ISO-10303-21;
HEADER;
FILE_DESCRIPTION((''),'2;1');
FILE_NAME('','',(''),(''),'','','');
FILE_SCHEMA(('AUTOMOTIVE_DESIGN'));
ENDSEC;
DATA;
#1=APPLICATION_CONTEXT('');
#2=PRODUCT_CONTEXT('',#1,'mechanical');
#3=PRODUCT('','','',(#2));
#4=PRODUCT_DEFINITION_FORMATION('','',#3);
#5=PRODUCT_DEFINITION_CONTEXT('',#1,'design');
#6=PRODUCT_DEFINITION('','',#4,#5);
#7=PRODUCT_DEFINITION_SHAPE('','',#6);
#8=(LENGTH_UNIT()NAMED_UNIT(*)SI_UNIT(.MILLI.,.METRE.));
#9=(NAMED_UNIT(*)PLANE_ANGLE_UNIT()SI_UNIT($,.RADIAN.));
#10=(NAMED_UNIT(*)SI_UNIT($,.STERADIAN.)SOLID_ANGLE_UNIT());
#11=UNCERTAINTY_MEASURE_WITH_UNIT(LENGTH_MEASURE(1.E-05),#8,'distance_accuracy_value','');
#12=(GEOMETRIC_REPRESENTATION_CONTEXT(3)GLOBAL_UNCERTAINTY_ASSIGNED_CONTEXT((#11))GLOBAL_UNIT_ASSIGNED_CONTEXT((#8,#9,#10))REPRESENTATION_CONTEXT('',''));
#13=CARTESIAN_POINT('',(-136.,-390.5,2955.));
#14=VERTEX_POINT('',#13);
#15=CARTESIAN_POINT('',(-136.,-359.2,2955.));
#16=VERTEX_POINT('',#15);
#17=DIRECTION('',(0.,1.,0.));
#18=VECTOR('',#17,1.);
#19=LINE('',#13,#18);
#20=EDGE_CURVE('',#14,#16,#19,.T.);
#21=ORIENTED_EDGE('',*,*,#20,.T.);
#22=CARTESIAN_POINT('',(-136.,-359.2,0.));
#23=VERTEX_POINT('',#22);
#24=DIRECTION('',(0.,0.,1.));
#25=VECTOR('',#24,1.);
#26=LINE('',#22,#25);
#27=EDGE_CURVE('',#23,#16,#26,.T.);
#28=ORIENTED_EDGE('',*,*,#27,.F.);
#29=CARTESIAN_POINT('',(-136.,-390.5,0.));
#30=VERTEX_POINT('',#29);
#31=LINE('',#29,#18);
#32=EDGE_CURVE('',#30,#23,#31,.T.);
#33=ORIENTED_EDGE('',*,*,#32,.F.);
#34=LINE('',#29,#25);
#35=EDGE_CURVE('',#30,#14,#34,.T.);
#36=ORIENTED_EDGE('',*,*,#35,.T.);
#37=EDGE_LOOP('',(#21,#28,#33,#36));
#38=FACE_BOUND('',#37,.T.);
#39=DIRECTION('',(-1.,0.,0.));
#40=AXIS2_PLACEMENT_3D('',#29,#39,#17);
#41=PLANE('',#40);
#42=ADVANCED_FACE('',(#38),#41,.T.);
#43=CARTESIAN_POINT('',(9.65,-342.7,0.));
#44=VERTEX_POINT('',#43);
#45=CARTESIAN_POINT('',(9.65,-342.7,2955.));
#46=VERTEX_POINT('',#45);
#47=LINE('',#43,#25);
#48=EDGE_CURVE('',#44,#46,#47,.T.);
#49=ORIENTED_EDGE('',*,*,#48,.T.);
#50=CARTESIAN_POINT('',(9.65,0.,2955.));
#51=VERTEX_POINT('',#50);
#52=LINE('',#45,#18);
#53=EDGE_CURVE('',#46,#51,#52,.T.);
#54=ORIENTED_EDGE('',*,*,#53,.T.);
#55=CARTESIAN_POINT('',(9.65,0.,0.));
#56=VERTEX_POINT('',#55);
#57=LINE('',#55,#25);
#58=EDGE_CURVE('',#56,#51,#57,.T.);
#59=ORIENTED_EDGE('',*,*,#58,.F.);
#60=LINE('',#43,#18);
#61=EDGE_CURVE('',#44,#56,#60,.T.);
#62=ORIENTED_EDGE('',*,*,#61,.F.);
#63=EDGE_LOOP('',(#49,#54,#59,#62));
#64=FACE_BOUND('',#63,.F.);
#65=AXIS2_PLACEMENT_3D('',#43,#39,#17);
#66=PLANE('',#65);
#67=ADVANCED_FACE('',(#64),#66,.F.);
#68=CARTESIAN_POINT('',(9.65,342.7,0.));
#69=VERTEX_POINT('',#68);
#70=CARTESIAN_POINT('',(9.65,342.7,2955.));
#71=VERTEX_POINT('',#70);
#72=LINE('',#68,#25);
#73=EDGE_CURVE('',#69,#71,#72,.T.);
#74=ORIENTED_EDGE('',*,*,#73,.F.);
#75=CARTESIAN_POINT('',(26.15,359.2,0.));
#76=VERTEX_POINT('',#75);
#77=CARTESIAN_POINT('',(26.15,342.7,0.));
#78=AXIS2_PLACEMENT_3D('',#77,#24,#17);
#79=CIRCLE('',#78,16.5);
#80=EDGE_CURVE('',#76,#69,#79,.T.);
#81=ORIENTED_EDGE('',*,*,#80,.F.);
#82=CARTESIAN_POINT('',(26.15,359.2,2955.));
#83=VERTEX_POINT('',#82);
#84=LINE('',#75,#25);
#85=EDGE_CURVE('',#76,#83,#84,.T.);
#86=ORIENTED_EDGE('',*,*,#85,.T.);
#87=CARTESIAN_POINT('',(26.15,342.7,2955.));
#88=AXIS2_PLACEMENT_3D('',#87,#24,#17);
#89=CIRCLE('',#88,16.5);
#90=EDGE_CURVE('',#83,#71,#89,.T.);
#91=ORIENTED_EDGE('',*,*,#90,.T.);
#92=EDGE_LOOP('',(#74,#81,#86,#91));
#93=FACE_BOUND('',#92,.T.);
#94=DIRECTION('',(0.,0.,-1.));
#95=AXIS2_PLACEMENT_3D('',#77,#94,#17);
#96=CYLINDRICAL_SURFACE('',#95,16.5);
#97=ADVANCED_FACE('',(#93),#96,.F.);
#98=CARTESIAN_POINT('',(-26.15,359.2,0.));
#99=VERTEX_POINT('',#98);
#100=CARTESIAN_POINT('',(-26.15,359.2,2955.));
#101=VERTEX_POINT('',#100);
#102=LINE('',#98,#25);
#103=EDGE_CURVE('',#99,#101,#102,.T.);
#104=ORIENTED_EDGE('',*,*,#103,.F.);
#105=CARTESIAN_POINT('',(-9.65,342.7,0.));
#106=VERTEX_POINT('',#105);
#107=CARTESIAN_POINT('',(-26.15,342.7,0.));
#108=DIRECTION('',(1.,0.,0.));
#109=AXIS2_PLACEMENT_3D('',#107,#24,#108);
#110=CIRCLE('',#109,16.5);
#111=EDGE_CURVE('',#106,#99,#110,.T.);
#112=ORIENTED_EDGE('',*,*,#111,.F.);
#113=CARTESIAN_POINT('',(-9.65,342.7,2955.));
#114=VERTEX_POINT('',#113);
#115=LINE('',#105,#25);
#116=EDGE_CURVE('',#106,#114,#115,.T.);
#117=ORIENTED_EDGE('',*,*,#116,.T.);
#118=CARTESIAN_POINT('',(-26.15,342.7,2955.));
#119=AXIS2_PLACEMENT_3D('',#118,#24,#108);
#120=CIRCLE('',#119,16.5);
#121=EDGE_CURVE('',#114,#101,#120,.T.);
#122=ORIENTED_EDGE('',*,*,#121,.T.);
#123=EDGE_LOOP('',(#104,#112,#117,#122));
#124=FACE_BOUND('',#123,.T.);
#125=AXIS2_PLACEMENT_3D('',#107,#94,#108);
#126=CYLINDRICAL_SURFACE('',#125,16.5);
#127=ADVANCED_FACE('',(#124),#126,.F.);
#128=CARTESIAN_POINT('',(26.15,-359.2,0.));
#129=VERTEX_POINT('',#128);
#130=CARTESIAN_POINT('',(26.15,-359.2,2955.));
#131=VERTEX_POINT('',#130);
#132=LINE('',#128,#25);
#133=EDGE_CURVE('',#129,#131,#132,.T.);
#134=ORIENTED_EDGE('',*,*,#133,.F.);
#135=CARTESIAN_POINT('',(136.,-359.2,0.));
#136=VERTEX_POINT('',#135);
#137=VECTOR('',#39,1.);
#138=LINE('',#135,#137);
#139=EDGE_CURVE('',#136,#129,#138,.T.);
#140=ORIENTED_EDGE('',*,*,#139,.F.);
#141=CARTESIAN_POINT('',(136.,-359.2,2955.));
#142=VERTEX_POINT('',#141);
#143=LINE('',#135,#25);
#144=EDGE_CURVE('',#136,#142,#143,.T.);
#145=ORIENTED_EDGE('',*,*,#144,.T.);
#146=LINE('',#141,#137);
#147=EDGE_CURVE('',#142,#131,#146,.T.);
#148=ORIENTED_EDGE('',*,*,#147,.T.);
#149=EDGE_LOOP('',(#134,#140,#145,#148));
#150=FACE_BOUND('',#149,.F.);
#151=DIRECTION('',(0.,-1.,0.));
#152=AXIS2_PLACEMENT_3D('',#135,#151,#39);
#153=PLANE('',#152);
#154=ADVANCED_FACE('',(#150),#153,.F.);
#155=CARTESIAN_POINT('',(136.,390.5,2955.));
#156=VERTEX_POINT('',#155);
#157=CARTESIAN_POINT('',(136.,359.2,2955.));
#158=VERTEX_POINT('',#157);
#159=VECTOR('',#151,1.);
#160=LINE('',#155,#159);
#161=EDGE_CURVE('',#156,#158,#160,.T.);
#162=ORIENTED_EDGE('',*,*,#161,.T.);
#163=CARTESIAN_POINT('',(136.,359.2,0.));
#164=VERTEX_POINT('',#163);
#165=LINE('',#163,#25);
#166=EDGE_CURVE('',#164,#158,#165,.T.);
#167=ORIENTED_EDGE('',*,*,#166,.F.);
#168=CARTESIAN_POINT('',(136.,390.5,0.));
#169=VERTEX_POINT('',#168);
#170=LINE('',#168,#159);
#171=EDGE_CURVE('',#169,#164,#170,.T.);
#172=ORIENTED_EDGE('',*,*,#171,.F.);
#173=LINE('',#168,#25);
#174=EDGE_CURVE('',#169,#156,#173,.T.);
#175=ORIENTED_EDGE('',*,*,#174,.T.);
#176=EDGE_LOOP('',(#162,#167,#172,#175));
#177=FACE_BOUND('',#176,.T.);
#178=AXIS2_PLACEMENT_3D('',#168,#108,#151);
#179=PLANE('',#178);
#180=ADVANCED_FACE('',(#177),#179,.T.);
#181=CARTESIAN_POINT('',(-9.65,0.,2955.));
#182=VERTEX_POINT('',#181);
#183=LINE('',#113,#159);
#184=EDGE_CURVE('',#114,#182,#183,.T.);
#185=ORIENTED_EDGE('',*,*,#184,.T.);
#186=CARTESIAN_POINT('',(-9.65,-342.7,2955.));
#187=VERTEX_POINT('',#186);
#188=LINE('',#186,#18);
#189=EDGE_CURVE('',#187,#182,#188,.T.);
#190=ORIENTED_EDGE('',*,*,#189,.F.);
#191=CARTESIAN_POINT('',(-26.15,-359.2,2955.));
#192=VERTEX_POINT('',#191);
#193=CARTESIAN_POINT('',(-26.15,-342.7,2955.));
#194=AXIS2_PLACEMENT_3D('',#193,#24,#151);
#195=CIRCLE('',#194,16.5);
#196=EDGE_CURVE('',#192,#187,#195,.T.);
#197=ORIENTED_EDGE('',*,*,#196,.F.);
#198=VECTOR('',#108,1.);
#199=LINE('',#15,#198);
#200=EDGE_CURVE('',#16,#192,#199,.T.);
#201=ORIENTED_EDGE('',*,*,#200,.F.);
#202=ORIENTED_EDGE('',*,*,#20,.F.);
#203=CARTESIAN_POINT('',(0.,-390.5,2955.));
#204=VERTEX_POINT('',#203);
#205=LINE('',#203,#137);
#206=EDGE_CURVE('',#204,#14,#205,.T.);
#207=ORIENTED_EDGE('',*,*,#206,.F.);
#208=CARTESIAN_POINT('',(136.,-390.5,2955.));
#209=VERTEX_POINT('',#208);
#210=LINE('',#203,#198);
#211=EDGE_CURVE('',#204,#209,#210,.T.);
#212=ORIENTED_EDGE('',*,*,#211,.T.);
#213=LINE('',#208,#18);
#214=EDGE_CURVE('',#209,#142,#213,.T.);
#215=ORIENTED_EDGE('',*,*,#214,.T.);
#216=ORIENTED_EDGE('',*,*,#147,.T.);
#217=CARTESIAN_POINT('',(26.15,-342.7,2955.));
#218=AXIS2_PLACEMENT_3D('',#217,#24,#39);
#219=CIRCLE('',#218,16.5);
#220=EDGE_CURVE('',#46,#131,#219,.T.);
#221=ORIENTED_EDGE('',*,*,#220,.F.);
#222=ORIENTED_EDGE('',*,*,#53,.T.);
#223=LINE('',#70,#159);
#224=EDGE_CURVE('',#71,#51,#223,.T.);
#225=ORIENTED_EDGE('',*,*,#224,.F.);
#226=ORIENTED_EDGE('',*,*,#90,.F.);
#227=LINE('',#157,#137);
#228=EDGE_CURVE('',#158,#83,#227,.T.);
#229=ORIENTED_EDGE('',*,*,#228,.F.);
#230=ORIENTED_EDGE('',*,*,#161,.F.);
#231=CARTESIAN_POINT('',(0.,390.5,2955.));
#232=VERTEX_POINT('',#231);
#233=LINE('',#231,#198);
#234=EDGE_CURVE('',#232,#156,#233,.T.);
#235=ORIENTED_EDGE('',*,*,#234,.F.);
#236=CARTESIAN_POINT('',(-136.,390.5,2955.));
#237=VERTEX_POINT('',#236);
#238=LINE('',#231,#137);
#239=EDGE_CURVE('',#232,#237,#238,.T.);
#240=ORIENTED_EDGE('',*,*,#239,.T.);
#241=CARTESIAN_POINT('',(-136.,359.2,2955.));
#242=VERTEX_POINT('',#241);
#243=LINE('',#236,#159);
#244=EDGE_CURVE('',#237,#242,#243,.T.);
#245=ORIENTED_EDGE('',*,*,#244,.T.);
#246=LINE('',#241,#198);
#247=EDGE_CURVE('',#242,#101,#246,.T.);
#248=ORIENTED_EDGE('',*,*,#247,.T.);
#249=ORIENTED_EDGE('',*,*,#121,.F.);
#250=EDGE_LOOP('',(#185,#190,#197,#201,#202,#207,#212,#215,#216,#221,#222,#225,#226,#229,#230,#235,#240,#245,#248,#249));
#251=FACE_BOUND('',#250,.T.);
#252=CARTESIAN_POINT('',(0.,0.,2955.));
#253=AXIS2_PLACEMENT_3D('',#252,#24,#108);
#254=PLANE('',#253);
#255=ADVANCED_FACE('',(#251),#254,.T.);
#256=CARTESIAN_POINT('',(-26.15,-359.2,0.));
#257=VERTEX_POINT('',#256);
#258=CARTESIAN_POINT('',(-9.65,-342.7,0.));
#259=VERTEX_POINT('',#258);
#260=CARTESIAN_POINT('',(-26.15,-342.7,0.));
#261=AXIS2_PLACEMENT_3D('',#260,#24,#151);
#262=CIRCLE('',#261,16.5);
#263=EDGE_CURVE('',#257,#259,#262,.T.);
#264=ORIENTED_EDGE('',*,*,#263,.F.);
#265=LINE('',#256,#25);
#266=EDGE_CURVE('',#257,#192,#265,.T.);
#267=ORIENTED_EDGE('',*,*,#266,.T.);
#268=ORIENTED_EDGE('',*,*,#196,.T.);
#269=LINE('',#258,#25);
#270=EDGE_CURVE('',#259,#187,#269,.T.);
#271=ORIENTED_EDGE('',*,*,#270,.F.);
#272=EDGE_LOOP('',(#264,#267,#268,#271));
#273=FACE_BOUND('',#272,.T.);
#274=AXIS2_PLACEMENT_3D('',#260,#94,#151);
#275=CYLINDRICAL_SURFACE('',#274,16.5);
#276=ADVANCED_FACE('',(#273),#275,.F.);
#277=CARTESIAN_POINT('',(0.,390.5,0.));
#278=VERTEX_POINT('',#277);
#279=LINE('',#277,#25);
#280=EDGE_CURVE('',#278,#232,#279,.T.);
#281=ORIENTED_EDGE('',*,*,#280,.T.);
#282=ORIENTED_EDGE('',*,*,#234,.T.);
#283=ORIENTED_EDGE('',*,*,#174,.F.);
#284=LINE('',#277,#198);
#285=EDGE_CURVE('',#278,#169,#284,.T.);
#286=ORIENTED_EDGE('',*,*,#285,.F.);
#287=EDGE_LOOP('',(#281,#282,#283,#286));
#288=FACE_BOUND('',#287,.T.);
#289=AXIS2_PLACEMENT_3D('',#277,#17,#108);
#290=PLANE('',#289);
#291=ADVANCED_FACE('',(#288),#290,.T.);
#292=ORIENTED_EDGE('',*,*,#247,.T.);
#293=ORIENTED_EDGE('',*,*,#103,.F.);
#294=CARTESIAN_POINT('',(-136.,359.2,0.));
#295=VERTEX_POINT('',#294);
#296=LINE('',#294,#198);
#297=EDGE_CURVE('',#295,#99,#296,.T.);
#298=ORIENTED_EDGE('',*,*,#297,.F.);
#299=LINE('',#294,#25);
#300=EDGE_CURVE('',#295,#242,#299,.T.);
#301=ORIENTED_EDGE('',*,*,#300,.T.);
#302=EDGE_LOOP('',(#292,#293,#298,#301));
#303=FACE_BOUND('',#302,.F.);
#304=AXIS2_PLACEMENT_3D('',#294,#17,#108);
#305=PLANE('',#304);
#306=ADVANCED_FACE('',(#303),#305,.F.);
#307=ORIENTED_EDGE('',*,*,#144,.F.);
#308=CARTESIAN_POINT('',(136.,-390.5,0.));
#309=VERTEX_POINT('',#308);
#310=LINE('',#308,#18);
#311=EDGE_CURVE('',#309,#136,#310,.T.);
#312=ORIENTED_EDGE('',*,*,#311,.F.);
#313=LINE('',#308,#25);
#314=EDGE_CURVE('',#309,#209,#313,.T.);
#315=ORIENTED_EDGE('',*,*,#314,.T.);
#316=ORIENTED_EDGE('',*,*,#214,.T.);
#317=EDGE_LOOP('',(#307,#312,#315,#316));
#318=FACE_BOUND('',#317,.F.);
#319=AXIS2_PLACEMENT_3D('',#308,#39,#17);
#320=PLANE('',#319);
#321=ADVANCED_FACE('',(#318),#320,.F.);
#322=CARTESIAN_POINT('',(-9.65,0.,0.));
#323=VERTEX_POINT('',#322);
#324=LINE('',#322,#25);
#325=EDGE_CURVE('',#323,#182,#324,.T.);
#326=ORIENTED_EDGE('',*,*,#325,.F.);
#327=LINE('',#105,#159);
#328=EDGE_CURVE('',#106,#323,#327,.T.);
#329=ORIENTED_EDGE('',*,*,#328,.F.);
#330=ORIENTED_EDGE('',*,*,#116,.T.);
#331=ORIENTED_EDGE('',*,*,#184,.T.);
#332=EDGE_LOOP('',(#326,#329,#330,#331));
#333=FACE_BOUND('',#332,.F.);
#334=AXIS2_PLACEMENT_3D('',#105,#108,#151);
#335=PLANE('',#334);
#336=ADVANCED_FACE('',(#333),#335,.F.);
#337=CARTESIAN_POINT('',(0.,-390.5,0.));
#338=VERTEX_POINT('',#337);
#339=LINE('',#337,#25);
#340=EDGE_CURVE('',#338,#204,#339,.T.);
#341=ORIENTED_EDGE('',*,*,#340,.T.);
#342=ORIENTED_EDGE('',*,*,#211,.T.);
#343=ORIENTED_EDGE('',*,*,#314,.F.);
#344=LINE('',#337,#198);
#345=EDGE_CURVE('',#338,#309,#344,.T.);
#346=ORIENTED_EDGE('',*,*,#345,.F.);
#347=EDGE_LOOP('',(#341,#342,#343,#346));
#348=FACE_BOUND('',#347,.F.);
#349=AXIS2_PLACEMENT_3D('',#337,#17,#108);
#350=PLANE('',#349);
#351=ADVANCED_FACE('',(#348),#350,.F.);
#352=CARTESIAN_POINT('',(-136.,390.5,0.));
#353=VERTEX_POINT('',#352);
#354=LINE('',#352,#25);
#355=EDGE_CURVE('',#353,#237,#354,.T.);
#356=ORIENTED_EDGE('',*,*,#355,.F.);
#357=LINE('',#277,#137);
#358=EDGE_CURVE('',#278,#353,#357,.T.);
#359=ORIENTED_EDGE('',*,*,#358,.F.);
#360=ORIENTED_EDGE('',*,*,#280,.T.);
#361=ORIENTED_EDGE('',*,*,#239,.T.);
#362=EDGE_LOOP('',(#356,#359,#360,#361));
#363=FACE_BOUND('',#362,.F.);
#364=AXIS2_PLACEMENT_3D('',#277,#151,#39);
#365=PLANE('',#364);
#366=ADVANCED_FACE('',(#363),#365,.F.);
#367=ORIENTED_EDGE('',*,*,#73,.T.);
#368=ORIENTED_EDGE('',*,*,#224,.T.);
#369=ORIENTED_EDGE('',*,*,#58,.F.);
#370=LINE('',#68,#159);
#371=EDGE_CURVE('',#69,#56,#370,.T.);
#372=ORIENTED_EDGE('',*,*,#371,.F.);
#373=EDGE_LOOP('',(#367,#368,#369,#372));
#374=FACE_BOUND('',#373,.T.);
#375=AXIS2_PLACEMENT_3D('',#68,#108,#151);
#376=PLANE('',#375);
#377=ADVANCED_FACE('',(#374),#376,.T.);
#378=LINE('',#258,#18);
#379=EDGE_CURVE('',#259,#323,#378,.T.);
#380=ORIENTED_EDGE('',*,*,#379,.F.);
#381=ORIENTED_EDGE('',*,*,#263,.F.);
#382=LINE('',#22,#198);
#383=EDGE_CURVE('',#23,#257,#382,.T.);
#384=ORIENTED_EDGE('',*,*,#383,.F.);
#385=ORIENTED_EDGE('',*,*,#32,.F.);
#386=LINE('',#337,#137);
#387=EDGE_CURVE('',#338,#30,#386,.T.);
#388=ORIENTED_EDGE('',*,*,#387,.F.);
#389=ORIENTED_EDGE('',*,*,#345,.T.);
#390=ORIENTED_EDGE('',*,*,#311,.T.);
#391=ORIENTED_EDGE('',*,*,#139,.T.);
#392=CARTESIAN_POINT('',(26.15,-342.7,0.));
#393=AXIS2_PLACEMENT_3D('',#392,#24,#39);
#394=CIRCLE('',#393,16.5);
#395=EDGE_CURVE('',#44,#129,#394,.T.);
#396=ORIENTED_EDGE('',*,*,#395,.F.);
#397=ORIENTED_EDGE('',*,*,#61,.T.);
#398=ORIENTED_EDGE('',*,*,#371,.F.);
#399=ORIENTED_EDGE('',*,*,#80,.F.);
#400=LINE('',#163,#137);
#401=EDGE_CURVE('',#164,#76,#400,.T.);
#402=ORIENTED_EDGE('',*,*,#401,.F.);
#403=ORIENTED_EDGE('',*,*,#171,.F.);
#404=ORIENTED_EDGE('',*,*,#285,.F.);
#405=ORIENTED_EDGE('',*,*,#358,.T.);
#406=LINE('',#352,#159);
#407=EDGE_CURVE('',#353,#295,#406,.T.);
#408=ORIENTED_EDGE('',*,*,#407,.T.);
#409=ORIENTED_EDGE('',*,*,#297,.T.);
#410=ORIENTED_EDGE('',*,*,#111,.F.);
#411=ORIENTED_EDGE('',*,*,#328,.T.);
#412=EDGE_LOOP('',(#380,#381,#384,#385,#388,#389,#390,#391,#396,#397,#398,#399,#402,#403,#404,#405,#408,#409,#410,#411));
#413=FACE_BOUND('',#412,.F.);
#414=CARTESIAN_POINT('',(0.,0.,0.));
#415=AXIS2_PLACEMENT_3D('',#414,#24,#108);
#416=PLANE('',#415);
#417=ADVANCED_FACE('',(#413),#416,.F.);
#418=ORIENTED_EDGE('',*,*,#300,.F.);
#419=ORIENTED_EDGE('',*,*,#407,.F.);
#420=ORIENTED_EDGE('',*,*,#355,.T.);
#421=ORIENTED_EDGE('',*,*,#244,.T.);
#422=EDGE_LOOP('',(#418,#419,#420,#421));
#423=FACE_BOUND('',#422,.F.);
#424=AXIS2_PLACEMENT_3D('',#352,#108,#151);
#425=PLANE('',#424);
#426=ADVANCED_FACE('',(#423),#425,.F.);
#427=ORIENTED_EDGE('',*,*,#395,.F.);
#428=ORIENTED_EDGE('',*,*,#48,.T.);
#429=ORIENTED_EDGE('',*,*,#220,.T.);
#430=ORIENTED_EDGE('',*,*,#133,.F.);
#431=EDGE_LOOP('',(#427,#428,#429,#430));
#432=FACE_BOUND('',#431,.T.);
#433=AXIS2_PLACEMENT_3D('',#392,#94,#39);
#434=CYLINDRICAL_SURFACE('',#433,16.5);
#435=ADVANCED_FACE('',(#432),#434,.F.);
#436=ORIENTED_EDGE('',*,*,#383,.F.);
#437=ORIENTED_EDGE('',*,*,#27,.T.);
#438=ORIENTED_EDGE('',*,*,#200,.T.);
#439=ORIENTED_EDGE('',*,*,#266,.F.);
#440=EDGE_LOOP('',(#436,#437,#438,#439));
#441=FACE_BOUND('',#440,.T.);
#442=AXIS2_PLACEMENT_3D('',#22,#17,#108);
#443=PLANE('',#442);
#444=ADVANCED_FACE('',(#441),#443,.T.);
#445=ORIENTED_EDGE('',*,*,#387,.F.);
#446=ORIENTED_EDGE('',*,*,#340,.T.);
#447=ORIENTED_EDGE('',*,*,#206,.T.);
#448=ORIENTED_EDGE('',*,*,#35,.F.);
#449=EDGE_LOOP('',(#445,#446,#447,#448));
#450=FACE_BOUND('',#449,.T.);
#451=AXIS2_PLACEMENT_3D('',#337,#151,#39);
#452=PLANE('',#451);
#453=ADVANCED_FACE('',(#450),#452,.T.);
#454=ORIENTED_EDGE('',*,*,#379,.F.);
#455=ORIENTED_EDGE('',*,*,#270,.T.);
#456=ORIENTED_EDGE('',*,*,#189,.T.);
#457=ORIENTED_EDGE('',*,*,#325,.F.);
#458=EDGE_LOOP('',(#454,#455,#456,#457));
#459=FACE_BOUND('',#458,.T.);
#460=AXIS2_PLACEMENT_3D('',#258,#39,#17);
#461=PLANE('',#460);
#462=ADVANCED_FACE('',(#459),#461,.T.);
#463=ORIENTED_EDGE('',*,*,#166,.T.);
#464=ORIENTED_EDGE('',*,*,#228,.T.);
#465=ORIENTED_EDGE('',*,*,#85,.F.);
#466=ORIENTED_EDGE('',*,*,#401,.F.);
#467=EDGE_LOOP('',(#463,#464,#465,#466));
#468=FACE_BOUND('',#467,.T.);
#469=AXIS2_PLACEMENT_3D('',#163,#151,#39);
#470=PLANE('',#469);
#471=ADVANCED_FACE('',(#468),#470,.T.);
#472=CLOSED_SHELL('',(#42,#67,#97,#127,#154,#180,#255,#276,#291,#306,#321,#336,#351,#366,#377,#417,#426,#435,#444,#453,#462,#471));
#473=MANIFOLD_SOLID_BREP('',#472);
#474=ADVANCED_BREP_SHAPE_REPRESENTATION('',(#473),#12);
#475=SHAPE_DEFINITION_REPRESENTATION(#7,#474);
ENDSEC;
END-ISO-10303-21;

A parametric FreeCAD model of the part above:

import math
import FreeCAD as App
import Part
import Sketcher
Q = App.Units.Quantity

doc = App.newDocument("Part")
body = doc.addObject("PartDesign::Body", "Body")

# Sketch on XY plane
sketch1 = body.newObject("Sketcher::SketchObject", "Sketch")
sketch1.AttachmentSupport = (doc.getObject("XY_Plane"), [""])
sketch1.MapMode = "FlatFace"
sketch1.addGeometry([
    Part.LineSegment(App.Vector(-136, -359.2, 0), App.Vector(-136, -390.5, 0)),  # 0
    Part.LineSegment(App.Vector(-136, -390.5, 0), App.Vector(136, -390.5, 0)),  # 1
    Part.LineSegment(App.Vector(136, -390.5, 0), App.Vector(136, -359.2, 0)),  # 2
    Part.LineSegment(App.Vector(136, -359.2, 0), App.Vector(26.15, -359.2, 0)),  # 3
    Part.ArcOfCircle(Part.Circle(App.Vector(26.15, -342.7, 0), App.Vector(0, 0, 1), 16.5), math.radians(180), math.radians(270)),  # 4
    Part.LineSegment(App.Vector(9.65, -342.7, 0), App.Vector(9.65, 342.7, 0)),  # 5
    Part.ArcOfCircle(Part.Circle(App.Vector(26.15, 342.7, 0), App.Vector(0, 0, 1), 16.5), math.radians(90), math.radians(180)),  # 6
    Part.LineSegment(App.Vector(26.15, 359.2, 0), App.Vector(136, 359.2, 0)),  # 7
    Part.LineSegment(App.Vector(136, 359.2, 0), App.Vector(136, 390.5, 0)),  # 8
    Part.LineSegment(App.Vector(136, 390.5, 0), App.Vector(-136, 390.5, 0)),  # 9
    Part.LineSegment(App.Vector(-136, 390.5, 0), App.Vector(-136, 359.2, 0)),  # 10
    Part.LineSegment(App.Vector(-136, 359.2, 0), App.Vector(-26.15, 359.2, 0)),  # 11
    Part.ArcOfCircle(Part.Circle(App.Vector(-26.15, 342.7, 0), App.Vector(0, 0, 1), 16.5), math.radians(0), math.radians(90)),  # 12
    Part.LineSegment(App.Vector(-9.65, 342.7, 0), App.Vector(-9.65, -342.7, 0)),  # 13
    Part.ArcOfCircle(Part.Circle(App.Vector(-26.15, -342.7, 0), App.Vector(0, 0, 1), 16.5), math.radians(-90), math.radians(0)),  # 14
    Part.LineSegment(App.Vector(-26.15, -359.2, 0), App.Vector(-136, -359.2, 0)),  # 15
], False)
sketch1.addConstraint([
    Sketcher.Constraint("Coincident", 0, 2, 1, 1),
    Sketcher.Constraint("Coincident", 1, 2, 2, 1),
    Sketcher.Constraint("Coincident", 2, 2, 3, 1),
    Sketcher.Constraint("Tangent", 3, 2, 4, 2),
    Sketcher.Constraint("Tangent", 4, 1, 5, 1),
    Sketcher.Constraint("Tangent", 5, 2, 6, 2),
    Sketcher.Constraint("Tangent", 6, 1, 7, 1),
    Sketcher.Constraint("Coincident", 7, 2, 8, 1),
    Sketcher.Constraint("Coincident", 8, 2, 9, 1),
    Sketcher.Constraint("Coincident", 9, 2, 10, 1),
    Sketcher.Constraint("Coincident", 10, 2, 11, 1),
    Sketcher.Constraint("Tangent", 11, 2, 12, 2),
    Sketcher.Constraint("Tangent", 12, 1, 13, 1),
    Sketcher.Constraint("Tangent", 13, 2, 14, 2),
    Sketcher.Constraint("Tangent", 14, 1, 15, 1),
    Sketcher.Constraint("Coincident", 15, 2, 0, 1),
    Sketcher.Constraint("Vertical", 0),
    Sketcher.Constraint("Horizontal", 1),
    Sketcher.Constraint("Vertical", 2),
    Sketcher.Constraint("Horizontal", 3),
    Sketcher.Constraint("Vertical", 5),
    Sketcher.Constraint("Horizontal", 7),
    Sketcher.Constraint("Vertical", 8),
    Sketcher.Constraint("Horizontal", 9),
    Sketcher.Constraint("Vertical", 10),
    Sketcher.Constraint("Horizontal", 11),
    Sketcher.Constraint("Vertical", 13),
    Sketcher.Constraint("Horizontal", 15),
    Sketcher.Constraint("Equal", 4, 6),
    Sketcher.Constraint("Equal", 6, 12),
    Sketcher.Constraint("Equal", 12, 14),
    Sketcher.Constraint("Symmetric", 4, 3, 12, 3, -1, 1),
    Sketcher.Constraint("Symmetric", 0, 2, 8, 2, -1, 1),
    Sketcher.Constraint("Symmetric", 7, 2, 10, 2, -2),
    Sketcher.Constraint("Symmetric", 2, 2, 15, 2, -2),
    Sketcher.Constraint("Radius", 4, Q("16.5 mm")),
    Sketcher.Constraint("DistanceY", 0, 2, 0, 1, Q("31.3 mm")),
    Sketcher.Constraint("DistanceX", 0, 2, -1, 1, Q("136 mm")),
    Sketcher.Constraint("DistanceY", 0, 2, -1, 1, Q("390.5 mm")),
    Sketcher.Constraint("DistanceX", -1, 1, 4, 1, Q("9.65 mm")),
])
pad1 = body.newObject("PartDesign::Pad", "Pad")
pad1.Profile = sketch1
pad1.Length = 2955

doc.recompute()
